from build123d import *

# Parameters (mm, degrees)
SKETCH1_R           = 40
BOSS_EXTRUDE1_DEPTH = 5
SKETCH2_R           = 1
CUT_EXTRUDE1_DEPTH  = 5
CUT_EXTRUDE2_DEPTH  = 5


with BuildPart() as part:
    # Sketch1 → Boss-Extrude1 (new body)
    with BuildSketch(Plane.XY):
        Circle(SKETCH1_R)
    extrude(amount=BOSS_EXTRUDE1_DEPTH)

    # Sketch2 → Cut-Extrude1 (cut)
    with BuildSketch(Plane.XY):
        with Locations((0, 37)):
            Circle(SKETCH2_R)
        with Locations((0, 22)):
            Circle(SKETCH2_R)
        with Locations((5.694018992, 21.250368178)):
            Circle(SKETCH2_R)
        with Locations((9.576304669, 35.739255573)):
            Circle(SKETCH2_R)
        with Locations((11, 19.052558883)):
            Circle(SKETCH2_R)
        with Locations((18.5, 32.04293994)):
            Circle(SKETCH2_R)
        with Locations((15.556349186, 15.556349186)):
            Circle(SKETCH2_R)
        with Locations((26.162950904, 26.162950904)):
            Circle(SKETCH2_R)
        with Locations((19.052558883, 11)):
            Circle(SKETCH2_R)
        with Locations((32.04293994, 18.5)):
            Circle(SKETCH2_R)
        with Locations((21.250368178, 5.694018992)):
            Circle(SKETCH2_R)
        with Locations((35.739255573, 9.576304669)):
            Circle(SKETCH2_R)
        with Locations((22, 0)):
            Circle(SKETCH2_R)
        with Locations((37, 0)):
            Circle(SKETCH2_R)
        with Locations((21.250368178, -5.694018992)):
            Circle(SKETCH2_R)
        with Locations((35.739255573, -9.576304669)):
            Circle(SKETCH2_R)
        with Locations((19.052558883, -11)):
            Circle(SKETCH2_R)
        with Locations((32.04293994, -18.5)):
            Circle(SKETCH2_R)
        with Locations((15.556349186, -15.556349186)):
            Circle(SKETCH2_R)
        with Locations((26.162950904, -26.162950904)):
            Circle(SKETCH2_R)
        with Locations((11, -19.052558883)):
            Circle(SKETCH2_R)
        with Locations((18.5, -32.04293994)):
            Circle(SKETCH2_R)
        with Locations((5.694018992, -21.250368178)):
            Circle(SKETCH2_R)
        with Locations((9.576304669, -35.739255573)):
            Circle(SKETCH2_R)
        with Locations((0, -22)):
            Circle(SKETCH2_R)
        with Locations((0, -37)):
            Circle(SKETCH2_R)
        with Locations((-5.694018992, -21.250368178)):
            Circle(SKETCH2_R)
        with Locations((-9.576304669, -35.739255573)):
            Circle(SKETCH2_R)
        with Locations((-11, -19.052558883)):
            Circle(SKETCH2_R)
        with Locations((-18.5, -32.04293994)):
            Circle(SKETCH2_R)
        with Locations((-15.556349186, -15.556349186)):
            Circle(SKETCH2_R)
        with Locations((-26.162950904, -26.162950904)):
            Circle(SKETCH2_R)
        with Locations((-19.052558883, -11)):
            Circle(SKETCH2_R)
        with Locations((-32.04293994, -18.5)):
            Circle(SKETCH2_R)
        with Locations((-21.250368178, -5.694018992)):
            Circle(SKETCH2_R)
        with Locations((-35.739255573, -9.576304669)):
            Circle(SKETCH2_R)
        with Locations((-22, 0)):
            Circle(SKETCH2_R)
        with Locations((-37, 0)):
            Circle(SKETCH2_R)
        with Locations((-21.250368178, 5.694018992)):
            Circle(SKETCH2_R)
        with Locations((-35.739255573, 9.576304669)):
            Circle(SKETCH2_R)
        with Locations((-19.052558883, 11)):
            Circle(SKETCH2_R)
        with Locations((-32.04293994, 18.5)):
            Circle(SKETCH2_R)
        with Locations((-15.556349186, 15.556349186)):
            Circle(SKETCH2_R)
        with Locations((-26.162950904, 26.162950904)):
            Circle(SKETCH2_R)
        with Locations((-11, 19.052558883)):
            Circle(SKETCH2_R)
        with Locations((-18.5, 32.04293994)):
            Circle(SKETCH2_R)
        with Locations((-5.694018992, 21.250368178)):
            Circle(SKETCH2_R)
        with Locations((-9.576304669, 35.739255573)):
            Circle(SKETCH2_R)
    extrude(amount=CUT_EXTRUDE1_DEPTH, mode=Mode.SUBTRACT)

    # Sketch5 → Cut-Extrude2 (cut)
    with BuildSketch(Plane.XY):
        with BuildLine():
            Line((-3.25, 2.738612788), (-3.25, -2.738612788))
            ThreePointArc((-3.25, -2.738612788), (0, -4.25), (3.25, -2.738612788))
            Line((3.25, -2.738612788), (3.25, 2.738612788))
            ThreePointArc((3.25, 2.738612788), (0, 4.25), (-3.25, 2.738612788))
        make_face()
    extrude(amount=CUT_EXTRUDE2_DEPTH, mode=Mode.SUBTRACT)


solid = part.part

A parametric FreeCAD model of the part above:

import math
import FreeCAD as App
import Part
import Sketcher

V = App.Vector

doc = App.newDocument("Part")
body = doc.addObject("PartDesign::Body", "Body")

# Sketch on XY plane
sketch1 = body.newObject("Sketcher::SketchObject", "Sketch")
sketch1.AttachmentSupport = (doc.getObject("XY_Plane"), [""])
sketch1.MapMode = "FlatFace"
sketch1.addGeometry(Part.Circle(V(0, 0, 0), V(0, 0, 1), 40), False)
sketch1.addConstraint([
    Sketcher.Constraint("Coincident", 0, 3, -1, 1),
    Sketcher.Constraint("Diameter", 0, 80.0),
])
pad1 = body.newObject("PartDesign::Pad", "Pad")
pad1.Profile = sketch1
pad1.Length = 5

# Sketch on XY plane
sketch2 = body.newObject("Sketcher::SketchObject", "Sketch001")
sketch2.AttachmentSupport = (doc.getObject("XY_Plane"), [""])
sketch2.MapMode = "FlatFace"
sketch2.addGeometry([
    Part.Circle(V(0, 37, 0), V(0, 0, 1), 1),  # 0
    Part.Circle(V(0, 22, 0), V(0, 0, 1), 1),  # 1
    Part.Circle(V(5.694019, 21.250368, 0), V(0, 0, 1), 1),  # 2
    Part.Circle(V(9.576305, 35.739256, 0), V(0, 0, 1), 1),  # 3
    Part.Circle(V(11, 19.052559, 0), V(0, 0, 1), 1),  # 4
    Part.Circle(V(18.5, 32.04294, 0), V(0, 0, 1), 1),  # 5
    Part.Circle(V(15.556349, 15.556349, 0), V(0, 0, 1), 1),  # 6
    Part.Circle(V(26.162951, 26.162951, 0), V(0, 0, 1), 1),  # 7
    Part.Circle(V(19.052559, 11, 0), V(0, 0, 1), 1),  # 8
    Part.Circle(V(32.04294, 18.5, 0), V(0, 0, 1), 1),  # 9
    Part.Circle(V(21.250368, 5.694019, 0), V(0, 0, 1), 1),  # 10
    Part.Circle(V(35.739256, 9.576305, 0), V(0, 0, 1), 1),  # 11
    Part.Circle(V(22, 0, 0), V(0, 0, 1), 1),  # 12
    Part.Circle(V(37, 0, 0), V(0, 0, 1), 1),  # 13
    Part.Circle(V(21.250368, -5.694019, 0), V(0, 0, 1), 1),  # 14
    Part.Circle(V(35.739256, -9.576305, 0), V(0, 0, 1), 1),  # 15
    Part.Circle(V(19.052559, -11, 0), V(0, 0, 1), 1),  # 16
    Part.Circle(V(32.04294, -18.5, 0), V(0, 0, 1), 1),  # 17
    Part.Circle(V(15.556349, -15.556349, 0), V(0, 0, 1), 1),  # 18
    Part.Circle(V(26.162951, -26.162951, 0), V(0, 0, 1), 1),  # 19
    Part.Circle(V(11, -19.052559, 0), V(0, 0, 1), 1),  # 20
    Part.Circle(V(18.5, -32.04294, 0), V(0, 0, 1), 1),  # 21
    Part.Circle(V(5.694019, -21.250368, 0), V(0, 0, 1), 1),  # 22
    Part.Circle(V(9.576305, -35.739256, 0), V(0, 0, 1), 1),  # 23
    Part.Circle(V(0, -22, 0), V(0, 0, 1), 1),  # 24
    Part.Circle(V(0, -37, 0), V(0, 0, 1), 1),  # 25
    Part.Circle(V(-5.694019, -21.250368, 0), V(0, 0, 1), 1),  # 26
    Part.Circle(V(-9.576305, -35.739256, 0), V(0, 0, 1), 1),  # 27
    Part.Circle(V(-11, -19.052559, 0), V(0, 0, 1), 1),  # 28
    Part.Circle(V(-18.5, -32.04294, 0), V(0, 0, 1), 1),  # 29
    Part.Circle(V(-15.556349, -15.556349, 0), V(0, 0, 1), 1),  # 30
    Part.Circle(V(-26.162951, -26.162951, 0), V(0, 0, 1), 1),  # 31
    Part.Circle(V(-19.052559, -11, 0), V(0, 0, 1), 1),  # 32
    Part.Circle(V(-32.04294, -18.5, 0), V(0, 0, 1), 1),  # 33
    Part.Circle(V(-21.250368, -5.694019, 0), V(0, 0, 1), 1),  # 34
    Part.Circle(V(-35.739256, -9.576305, 0), V(0, 0, 1), 1),  # 35
    Part.Circle(V(-22, 0, 0), V(0, 0, 1), 1),  # 36
    Part.Circle(V(-37, 0, 0), V(0, 0, 1), 1),  # 37
    Part.Circle(V(-21.250368, 5.694019, 0), V(0, 0, 1), 1),  # 38
    Part.Circle(V(-35.739256, 9.576305, 0), V(0, 0, 1), 1),  # 39
    Part.Circle(V(-19.052559, 11, 0), V(0, 0, 1), 1),  # 40
    Part.Circle(V(-32.04294, 18.5, 0), V(0, 0, 1), 1),  # 41
    Part.Circle(V(-15.556349, 15.556349, 0), V(0, 0, 1), 1),  # 42
    Part.Circle(V(-26.162951, 26.162951, 0), V(0, 0, 1), 1),  # 43
    Part.Circle(V(-11, 19.052559, 0), V(0, 0, 1), 1),  # 44
    Part.Circle(V(-18.5, 32.04294, 0), V(0, 0, 1), 1),  # 45
    Part.Circle(V(-5.694019, 21.250368, 0), V(0, 0, 1), 1),  # 46
    Part.Circle(V(-9.576305, 35.739256, 0), V(0, 0, 1), 1),  # 47
], False)
sketch2.addConstraint([
    Sketcher.Constraint("Equal", 0, 1),
    Sketcher.Constraint("Equal", 1, 2),
    Sketcher.Constraint("Equal", 2, 3),
    Sketcher.Constraint("Equal", 3, 4),
    Sketcher.Constraint("Equal", 4, 5),
    Sketcher.Constraint("Equal", 5, 6),
    Sketcher.Constraint("Equal", 6, 7),
    Sketcher.Constraint("Equal", 7, 8),
    Sketcher.Constraint("Equal", 8, 9),
    Sketcher.Constraint("Equal", 9, 10),
    Sketcher.Constraint("Equal", 10, 11),
    Sketcher.Constraint("Equal", 11, 12),
    Sketcher.Constraint("Equal", 12, 13),
    Sketcher.Constraint("Equal", 13, 14),
    Sketcher.Constraint("Equal", 14, 15),
    Sketcher.Constraint("Equal", 15, 16),
    Sketcher.Constraint("Equal", 16, 17),
    Sketcher.Constraint("Equal", 17, 18),
    Sketcher.Constraint("Equal", 18, 19),
    Sketcher.Constraint("Equal", 19, 20),
    Sketcher.Constraint("Equal", 20, 21),
    Sketcher.Constraint("Equal", 21, 22),
    Sketcher.Constraint("Equal", 22, 23),
    Sketcher.Constraint("Equal", 23, 24),
    Sketcher.Constraint("Equal", 24, 25),
    Sketcher.Constraint("Equal", 25, 26),
    Sketcher.Constraint("Equal", 26, 27),
    Sketcher.Constraint("Equal", 27, 28),
    Sketcher.Constraint("Equal", 28, 29),
    Sketcher.Constraint("Equal", 29, 30),
    Sketcher.Constraint("Equal", 30, 31),
    Sketcher.Constraint("Equal", 31, 32),
    Sketcher.Constraint("Equal", 32, 33),
    Sketcher.Constraint("Equal", 33, 34),
    Sketcher.Constraint("Equal", 34, 35),
    Sketcher.Constraint("Equal", 35, 36),
    Sketcher.Constraint("Equal", 36, 37),
    Sketcher.Constraint("Equal", 37, 38),
    Sketcher.Constraint("Equal", 38, 39),
    Sketcher.Constraint("Equal", 39, 40),
    Sketcher.Constraint("Equal", 40, 41),
    Sketcher.Constraint("Equal", 41, 42),
    Sketcher.Constraint("Equal", 42, 43),
    Sketcher.Constraint("Equal", 43, 44),
    Sketcher.Constraint("Equal", 44, 45),
    Sketcher.Constraint("Equal", 45, 46),
    Sketcher.Constraint("Equal", 46, 47),
    Sketcher.Constraint("Symmetric", 1, 3, 24, 3, -1, 1),
    Sketcher.Constraint("Symmetric", 0, 3, 25, 3, -1, 1),
    Sketcher.Constraint("Symmetric", 2, 3, 26, 3, -1, 1),
    Sketcher.Constraint("Symmetric", 3, 3, 27, 3, -1, 1),
    Sketcher.Constraint("Symmetric", 4, 3, 28, 3, -1, 1),
    Sketcher.Constraint("Symmetric", 5, 3, 29, 3, -1, 1),
    Sketcher.Constraint("Symmetric", 6, 3, 30, 3, -1, 1),
    Sketcher.Constraint("Symmetric", 7, 3, 31, 3, -1, 1),
    Sketcher.Constraint("Symmetric", 8, 3, 32, 3, -1, 1),
    Sketcher.Constraint("Symmetric", 9, 3, 33, 3, -1, 1),
    Sketcher.Constraint("Symmetric", 10, 3, 34, 3, -1, 1),
    Sketcher.Constraint("Symmetric", 11, 3, 35, 3, -1, 1),
    Sketcher.Constraint("Symmetric", 12, 3, 36, 3, -1, 1),
    Sketcher.Constraint("Symmetric", 13, 3, 37, 3, -1, 1),
    Sketcher.Constraint("Symmetric", 14, 3, 38, 3, -1, 1),
    Sketcher.Constraint("Symmetric", 15, 3, 39, 3, -1, 1),
    Sketcher.Constraint("Symmetric", 16, 3, 40, 3, -1, 1),
    Sketcher.Constraint("Symmetric", 17, 3, 41, 3, -1, 1),
    Sketcher.Constraint("Symmetric", 18, 3, 42, 3, -1, 1),
    Sketcher.Constraint("Symmetric", 19, 3, 43, 3, -1, 1),
    Sketcher.Constraint("Symmetric", 20, 3, 44, 3, -1, 1),
    Sketcher.Constraint("Symmetric", 21, 3, 45, 3, -1, 1),
    Sketcher.Constraint("Symmetric", 22, 3, 46, 3, -1, 1),
    Sketcher.Constraint("Symmetric", 23, 3, 47, 3, -1, 1),
    Sketcher.Constraint("Symmetric", 22, 3, 26, 3, -2),
    Sketcher.Constraint("Symmetric", 23, 3, 27, 3, -2),
    Sketcher.Constraint("Symmetric", 20, 3, 28, 3, -2),
    Sketcher.Constraint("Symmetric", 21, 3, 29, 3, -2),
    Sketcher.Constraint("Symmetric", 18, 3, 30, 3, -2),
    Sketcher.Constraint("Symmetric", 19, 3, 31, 3, -2),
    Sketcher.Constraint("Symmetric", 16, 3, 32, 3, -2),
    Sketcher.Constraint("Symmetric", 17, 3, 33, 3, -2),
    Sketcher.Constraint("Symmetric", 14, 3, 34, 3, -2),
    Sketcher.Constraint("Symmetric", 15, 3, 35, 3, -2),
    Sketcher.Constraint("PointOnObject", 0, 3, -2),
    Sketcher.Constraint("PointOnObject", 1, 3, -2),
    Sketcher.Constraint("PointOnObject", 12, 3, -1),
    Sketcher.Constraint("PointOnObject", 13, 3, -1),
    Sketcher.Constraint("Diameter", 0, 2.0),
    Sketcher.Constraint("DistanceY", -1, 1, 0, 3, 37.0),
    Sketcher.Constraint("DistanceY", -1, 1, 1, 3, 22.0),
    Sketcher.Constraint("DistanceX", -1, 1, 4, 3, 11.0),
    Sketcher.Constraint("DistanceY", -1, 1, 8, 3, 11.0),
    Sketcher.Constraint("DistanceX", -1, 1, 12, 3, 22.0),
    Sketcher.Constraint("DistanceX", -1, 1, 13, 3, 37.0),
    Sketcher.Constraint("DistanceX", -1, 1, 5, 3, 18.5),
    Sketcher.Constraint("DistanceY", -1, 1, 9, 3, 18.5),
    Sketcher.Constraint("DistanceX", 6, 3, 7, 3, 10.606602),
    Sketcher.Constraint("DistanceY", 6, 3, 7, 3, 10.606602),
    Sketcher.Constraint("DistanceX", -1, 1, 2, 3, 5.694019),
    Sketcher.Constraint("DistanceY", -1, 1, 2, 3, 21.250368),
    Sketcher.Constraint("DistanceY", -1, 1, 4, 3, 19.052559),
    Sketcher.Constraint("DistanceY", -1, 1, 5, 3, 32.04294),
    Sketcher.Constraint("DistanceX", -1, 1, 6, 3, 15.556349),
    Sketcher.Constraint("DistanceY", -1, 1, 6, 3, 15.556349),
    Sketcher.Constraint("DistanceX", -1, 1, 8, 3, 19.052559),
    Sketcher.Constraint("DistanceX", -1, 1, 9, 3, 32.04294),
    Sketcher.Constraint("DistanceX", -1, 1, 10, 3, 21.250368),
    Sketcher.Constraint("DistanceY", -1, 1, 10, 3, 5.694019),
    Sketcher.Constraint("DistanceY", 15, 3, 11, 3, 19.152609),
    Sketcher.Constraint("DistanceX", 27, 3, 23, 3, 19.152609),
    Sketcher.Constraint("DistanceY", -1, 1, 3, 3, 35.739256),
    Sketcher.Constraint("DistanceX", -1, 1, 11, 3, 35.739256),
])
pocket1 = body.newObject("PartDesign::Pocket", "Pocket")
pocket1.Profile = sketch2
pocket1.Length = 5
pocket1.Reversed = True

# Sketch on XY plane
sketch3 = body.newObject("Sketcher::SketchObject", "Sketch002")
sketch3.AttachmentSupport = (doc.getObject("XY_Plane"), [""])
sketch3.MapMode = "FlatFace"
sketch3.addGeometry([
    Part.LineSegment(V(-3.25, 2.738613, 0), V(-3.25, -2.738613, 0)),
    Part.ArcOfCircle(Part.Circle(V(0, 0, 0), V(0, 0, 1), 4.25), math.radians(-139.880833), math.radians(-40.119167)),
    Part.LineSegment(V(3.25, -2.738613, 0), V(3.25, 2.738613, 0)),
    Part.ArcOfCircle(Part.Circle(V(0, 0, 0), V(0, 0, 1), 4.25), math.radians(40.119167), math.radians(139.880833)),
], False)
sketch3.addConstraint([
    Sketcher.Constraint("Coincident", 0, 2, 1, 1),
    Sketcher.Constraint("Coincident", 1, 2, 2, 1),
    Sketcher.Constraint("Coincident", 2, 2, 3, 1),
    Sketcher.Constraint("Coincident", 3, 2, 0, 1),
    Sketcher.Constraint("Vertical", 0),
    Sketcher.Constraint("Vertical", 2),
    Sketcher.Constraint("Coincident", 1, 3, -1, 1),
    Sketcher.Constraint("Coincident", 3, 3, -1, 1),
    Sketcher.Constraint("Equal", 1, 3),
    Sketcher.Constraint("Horizontal", 0, 2, 1, 2),
    Sketcher.Constraint("Radius", 1, 4.25),
    Sketcher.Constraint("DistanceX", 0, 2, 1, 2, 6.5),
])
pocket2 = body.newObject("PartDesign::Pocket", "Pocket001")
pocket2.Profile = sketch3
pocket2.Length = 5
pocket2.Reversed = True

doc.recompute()
